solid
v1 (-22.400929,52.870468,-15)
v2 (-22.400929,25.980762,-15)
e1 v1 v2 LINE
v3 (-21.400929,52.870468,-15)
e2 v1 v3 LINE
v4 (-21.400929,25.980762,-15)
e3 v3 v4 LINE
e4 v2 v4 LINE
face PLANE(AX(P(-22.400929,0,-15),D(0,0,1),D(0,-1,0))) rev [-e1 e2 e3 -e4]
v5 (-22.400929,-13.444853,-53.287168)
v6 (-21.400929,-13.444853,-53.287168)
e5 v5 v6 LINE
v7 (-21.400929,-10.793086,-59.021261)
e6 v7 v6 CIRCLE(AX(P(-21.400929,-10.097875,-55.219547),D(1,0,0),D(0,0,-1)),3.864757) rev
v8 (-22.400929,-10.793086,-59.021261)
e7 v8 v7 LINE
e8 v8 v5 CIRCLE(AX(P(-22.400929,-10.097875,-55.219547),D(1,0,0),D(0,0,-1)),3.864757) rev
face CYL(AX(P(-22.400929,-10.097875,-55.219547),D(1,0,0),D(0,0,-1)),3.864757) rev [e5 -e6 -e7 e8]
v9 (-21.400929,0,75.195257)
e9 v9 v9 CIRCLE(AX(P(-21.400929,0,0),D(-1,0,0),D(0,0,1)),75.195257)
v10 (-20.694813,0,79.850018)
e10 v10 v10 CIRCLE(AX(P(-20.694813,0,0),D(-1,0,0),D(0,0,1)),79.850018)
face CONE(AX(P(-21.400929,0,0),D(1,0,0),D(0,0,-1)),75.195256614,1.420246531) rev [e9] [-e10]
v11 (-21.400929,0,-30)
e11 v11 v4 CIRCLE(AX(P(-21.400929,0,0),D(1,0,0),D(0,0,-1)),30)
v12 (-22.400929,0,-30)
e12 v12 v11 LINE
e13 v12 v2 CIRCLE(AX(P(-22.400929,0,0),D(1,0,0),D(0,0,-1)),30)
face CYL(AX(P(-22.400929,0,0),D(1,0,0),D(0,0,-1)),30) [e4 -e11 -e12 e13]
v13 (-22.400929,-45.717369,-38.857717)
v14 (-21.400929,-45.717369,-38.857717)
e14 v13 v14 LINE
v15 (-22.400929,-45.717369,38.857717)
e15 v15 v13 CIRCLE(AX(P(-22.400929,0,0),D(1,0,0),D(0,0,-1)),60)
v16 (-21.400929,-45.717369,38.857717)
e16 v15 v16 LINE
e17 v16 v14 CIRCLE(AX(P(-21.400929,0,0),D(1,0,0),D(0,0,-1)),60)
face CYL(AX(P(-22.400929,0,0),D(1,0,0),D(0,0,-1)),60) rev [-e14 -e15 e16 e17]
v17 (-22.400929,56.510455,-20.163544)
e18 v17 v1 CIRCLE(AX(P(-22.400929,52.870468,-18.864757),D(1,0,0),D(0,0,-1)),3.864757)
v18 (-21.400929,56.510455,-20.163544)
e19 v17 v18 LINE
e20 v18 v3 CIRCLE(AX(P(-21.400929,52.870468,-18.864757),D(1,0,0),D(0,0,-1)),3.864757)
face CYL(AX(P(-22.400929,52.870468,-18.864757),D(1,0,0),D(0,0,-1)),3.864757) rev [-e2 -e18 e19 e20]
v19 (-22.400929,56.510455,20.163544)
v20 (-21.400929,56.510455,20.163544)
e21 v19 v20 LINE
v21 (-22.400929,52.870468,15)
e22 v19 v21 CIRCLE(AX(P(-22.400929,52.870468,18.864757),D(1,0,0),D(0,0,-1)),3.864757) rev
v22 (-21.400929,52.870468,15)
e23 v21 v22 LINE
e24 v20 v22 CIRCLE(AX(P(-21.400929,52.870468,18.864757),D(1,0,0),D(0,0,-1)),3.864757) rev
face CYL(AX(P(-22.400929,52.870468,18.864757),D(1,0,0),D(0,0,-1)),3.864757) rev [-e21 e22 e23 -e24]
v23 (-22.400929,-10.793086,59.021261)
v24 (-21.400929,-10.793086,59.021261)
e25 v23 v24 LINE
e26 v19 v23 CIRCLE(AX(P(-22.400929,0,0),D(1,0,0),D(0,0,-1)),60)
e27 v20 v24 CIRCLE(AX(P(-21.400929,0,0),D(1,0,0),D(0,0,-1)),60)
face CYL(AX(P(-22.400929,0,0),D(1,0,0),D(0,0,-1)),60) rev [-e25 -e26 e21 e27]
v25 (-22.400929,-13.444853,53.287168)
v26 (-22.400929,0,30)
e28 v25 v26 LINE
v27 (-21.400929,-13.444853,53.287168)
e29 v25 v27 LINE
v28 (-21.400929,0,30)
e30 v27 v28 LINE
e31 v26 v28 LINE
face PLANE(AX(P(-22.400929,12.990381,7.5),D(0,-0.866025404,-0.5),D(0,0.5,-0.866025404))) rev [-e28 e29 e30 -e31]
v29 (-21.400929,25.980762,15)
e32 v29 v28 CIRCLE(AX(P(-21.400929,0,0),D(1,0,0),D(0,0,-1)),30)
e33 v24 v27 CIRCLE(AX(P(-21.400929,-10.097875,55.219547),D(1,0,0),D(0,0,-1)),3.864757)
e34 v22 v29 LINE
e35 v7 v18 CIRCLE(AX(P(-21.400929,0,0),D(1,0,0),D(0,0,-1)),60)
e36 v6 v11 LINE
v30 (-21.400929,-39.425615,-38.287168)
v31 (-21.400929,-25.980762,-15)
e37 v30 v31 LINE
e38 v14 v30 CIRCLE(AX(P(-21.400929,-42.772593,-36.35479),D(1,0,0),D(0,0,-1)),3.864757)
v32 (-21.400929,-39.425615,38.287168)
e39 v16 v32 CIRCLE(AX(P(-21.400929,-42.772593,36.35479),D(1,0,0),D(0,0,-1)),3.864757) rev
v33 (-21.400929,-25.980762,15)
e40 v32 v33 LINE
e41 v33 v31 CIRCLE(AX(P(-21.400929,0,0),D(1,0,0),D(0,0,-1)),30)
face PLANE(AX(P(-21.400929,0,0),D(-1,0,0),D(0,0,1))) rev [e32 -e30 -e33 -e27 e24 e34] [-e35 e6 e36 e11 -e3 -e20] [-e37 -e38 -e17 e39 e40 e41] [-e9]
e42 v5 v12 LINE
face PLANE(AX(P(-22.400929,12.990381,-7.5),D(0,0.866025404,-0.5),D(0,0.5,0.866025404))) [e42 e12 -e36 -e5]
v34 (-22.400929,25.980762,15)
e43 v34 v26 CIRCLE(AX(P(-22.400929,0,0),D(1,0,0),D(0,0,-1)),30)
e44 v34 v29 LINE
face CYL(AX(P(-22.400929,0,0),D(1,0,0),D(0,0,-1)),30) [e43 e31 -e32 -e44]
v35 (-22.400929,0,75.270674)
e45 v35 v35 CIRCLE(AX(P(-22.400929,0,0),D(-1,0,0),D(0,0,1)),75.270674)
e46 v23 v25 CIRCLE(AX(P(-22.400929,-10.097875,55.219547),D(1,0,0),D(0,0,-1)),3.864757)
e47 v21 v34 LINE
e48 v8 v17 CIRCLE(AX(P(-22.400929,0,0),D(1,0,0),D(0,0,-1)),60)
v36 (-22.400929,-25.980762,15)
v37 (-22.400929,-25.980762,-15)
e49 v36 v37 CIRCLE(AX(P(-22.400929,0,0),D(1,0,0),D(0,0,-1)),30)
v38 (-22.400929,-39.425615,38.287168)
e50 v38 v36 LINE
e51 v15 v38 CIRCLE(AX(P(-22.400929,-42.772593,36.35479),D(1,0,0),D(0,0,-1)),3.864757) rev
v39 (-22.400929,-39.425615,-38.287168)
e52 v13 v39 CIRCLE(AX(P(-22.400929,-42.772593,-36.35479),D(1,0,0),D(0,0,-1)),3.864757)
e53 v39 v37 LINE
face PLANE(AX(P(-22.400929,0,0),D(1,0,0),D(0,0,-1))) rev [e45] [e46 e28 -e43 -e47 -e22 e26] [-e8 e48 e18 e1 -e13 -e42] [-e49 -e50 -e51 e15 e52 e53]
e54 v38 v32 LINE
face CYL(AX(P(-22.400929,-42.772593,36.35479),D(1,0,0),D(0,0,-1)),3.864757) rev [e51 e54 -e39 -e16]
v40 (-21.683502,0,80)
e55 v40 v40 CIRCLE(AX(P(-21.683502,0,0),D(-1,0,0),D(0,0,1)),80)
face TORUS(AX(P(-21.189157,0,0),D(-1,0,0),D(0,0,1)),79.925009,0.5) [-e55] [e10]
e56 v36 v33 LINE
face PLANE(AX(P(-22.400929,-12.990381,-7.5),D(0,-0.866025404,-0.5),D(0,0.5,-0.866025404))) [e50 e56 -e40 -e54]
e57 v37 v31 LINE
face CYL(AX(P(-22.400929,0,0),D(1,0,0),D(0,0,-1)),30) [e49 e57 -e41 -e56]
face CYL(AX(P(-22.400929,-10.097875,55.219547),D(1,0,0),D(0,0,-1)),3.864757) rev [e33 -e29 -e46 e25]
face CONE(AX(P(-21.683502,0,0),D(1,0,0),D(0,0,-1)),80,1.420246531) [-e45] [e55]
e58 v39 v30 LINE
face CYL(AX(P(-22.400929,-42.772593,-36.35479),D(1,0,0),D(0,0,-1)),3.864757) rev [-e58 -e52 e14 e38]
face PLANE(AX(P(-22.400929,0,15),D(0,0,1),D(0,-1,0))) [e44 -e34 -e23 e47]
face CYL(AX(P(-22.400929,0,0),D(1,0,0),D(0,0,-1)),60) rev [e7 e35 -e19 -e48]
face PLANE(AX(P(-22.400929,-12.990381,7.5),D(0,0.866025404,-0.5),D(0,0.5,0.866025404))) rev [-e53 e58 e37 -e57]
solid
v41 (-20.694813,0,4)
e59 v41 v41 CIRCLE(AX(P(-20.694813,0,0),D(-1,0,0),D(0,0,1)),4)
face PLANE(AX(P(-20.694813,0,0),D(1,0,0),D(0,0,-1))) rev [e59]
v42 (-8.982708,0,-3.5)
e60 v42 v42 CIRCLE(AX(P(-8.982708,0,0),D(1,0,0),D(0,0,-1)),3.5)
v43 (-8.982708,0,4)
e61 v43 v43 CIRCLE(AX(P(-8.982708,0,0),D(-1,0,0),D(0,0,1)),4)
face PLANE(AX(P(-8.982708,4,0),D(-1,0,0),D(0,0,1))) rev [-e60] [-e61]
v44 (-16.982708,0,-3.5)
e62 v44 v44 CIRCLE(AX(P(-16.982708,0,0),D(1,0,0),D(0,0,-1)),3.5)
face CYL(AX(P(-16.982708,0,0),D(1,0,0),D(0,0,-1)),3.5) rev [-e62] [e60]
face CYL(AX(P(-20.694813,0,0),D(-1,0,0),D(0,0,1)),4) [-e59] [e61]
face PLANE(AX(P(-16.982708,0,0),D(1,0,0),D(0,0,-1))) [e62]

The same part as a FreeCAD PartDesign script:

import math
import FreeCAD as App
import Part
import Sketcher

V = App.Vector
Q = App.Units.Quantity


def add_polygon(sketch, points):
    """Adds a closed chain of lines whose ends are joined by coincident constraints."""
    first, n = sketch.GeometryCount, len(points)
    for a, b in zip(points, points[1:] + points[:1]):
        sketch.addGeometry(Part.LineSegment(App.Vector(*a, 0), App.Vector(*b, 0)), False)
    for i in range(n):
        sketch.addConstraint(Sketcher.Constraint("Coincident", first + i, 2, first + (i + 1) % n, 1))

doc = App.newDocument("Part")
body = doc.addObject("PartDesign::Body", "Body")

# Sketch on XY plane
sketch1 = doc.addObject("Sketcher::SketchObject", "Sketch")
body.addObject(sketch1)
sketch1.AttachmentSupport = (doc.XY_Plane, [""])
sketch1.MapMode = "FlatFace"
sketch1.addGeometry(Part.LineSegment(V(-22.4, 75.3, 0), V(-22.4, 0, 0)), False)
sketch1.addGeometry(Part.LineSegment(V(-22.4, 0, 0), V(-21.4, 0, 0)), False)
sketch1.addGeometry(Part.LineSegment(V(-21.4, 0, 0), V(-21.4, 75.2, 0)), False)
sketch1.addGeometry(Part.LineSegment(V(-21.4, 75.2, 0), V(-20.7, 79.9, 0)), False)
sketch1.addGeometry(Part.ArcOfCircle(Part.Circle(V(-21.2, 79.9, 0), V(0, 0, 1), 0.5), math.radians(-9), math.radians(171)), False)
sketch1.addGeometry(Part.LineSegment(V(-21.7, 80, 0), V(-22.4, 75.3, 0)), False)
sketch1.addConstraint(Sketcher.Constraint("Coincident", 0, 2, 1, 1))
sketch1.addConstraint(Sketcher.Constraint("Coincident", 1, 2, 2, 1))
sketch1.addConstraint(Sketcher.Constraint("Coincident", 2, 2, 3, 1))
sketch1.addConstraint(Sketcher.Constraint("Tangent", 3, 2, 4, 1))
sketch1.addConstraint(Sketcher.Constraint("Tangent", 4, 2, 5, 1))
sketch1.addConstraint(Sketcher.Constraint("Coincident", 5, 2, 0, 1))
sketch1.addConstraint(Sketcher.Constraint("Vertical", 0))
sketch1.addConstraint(Sketcher.Constraint("Horizontal", 1))
sketch1.addConstraint(Sketcher.Constraint("Vertical", 2))
sketch1.addConstraint(Sketcher.Constraint("PointOnObject", 0, 2, -1))
sketch1.addConstraint(Sketcher.Constraint("Parallel", 3, 5))
sketch1.addConstraint(Sketcher.Constraint("Radius", 4, Q("0.5 mm")))
sketch1.addConstraint(Sketcher.Constraint("DistanceX", 1, 1, 1, 2, Q("1 mm")))
sketch1.addConstraint(Sketcher.Constraint("DistanceY", -1, 1, 4, 2, Q("80 mm")))
sketch1.addConstraint(Sketcher.Constraint("DistanceX", 4, 2, -1, 1, Q("21.683502 mm")))
sketch1.addConstraint(Sketcher.Constraint("DistanceY", 0, 2, 0, 1, Q("75.270674 mm")))
sketch1.addConstraint(Sketcher.Constraint("DistanceY", 2, 1, 2, 2, Q("75.195257 mm")))
revolution = doc.addObject("PartDesign::Revolution", "Revolution")
body.addObject(revolution)
revolution.Profile = sketch1
revolution.ReferenceAxis = (sketch1, ["H_Axis"])
revolution.Angle = 360

# Sketch on YZ plane
sketch2 = doc.addObject("Sketcher::SketchObject", "Sketch001")
body.addObject(sketch2)
sketch2.AttachmentSupport = (doc.YZ_Plane, [""])
sketch2.MapMode = "FlatFace"
sketch2.AttachmentOffset = App.Placement(V(0, 0, -21.400929), App.Rotation())
sketch2.addGeometry(Part.LineSegment(V(26, 15, 0), V(52.9, 15, 0)), False)
sketch2.addGeometry(Part.ArcOfCircle(Part.Circle(V(52.9, 18.9, 0), V(0, 0, 1), 3.9), math.radians(-90), math.radians(20)), False)
sketch2.addGeometry(Part.ArcOfCircle(Part.Circle(V(0, 0, 0), V(0, 0, 1), 60), math.radians(20), math.radians(100)), False)
sketch2.addGeometry(Part.ArcOfCircle(Part.Circle(V(-10.1, 55.2, 0), V(0, 0, 1), 3.9), math.radians(100), math.radians(210)), False)
sketch2.addGeometry(Part.LineSegment(V(-13.4, 53.3, 0), V(0, 30, 0)), False)
sketch2.addGeometry(Part.ArcOfCircle(Part.Circle(V(0, 0, 0), V(0, 0, 1), 30), math.radians(30), math.radians(90)), False)
sketch2.addGeometry(Part.ArcOfCircle(Part.Circle(V(0, 0, 0), V(0, 0, 1), 30), math.radians(150), math.radians(210)), False)
sketch2.addGeometry(Part.LineSegment(V(-26, 15, 0), V(-39.4, 38.3, 0)), False)
sketch2.addGeometry(Part.ArcOfCircle(Part.Circle(V(-42.8, 36.4, 0), V(0, 0, 1), 3.9), math.radians(30), math.radians(140)), False)
sketch2.addGeometry(Part.ArcOfCircle(Part.Circle(V(0, 0, 0), V(0, 0, 1), 60), math.radians(140), math.radians(220)), False)
sketch2.addGeometry(Part.ArcOfCircle(Part.Circle(V(-42.8, -36.4, 0), V(0, 0, 1), 3.9), math.radians(-140), math.radians(-30)), False)
sketch2.addGeometry(Part.LineSegment(V(-39.4, -38.3, 0), V(-26, -15, 0)), False)
sketch2.addGeometry(Part.LineSegment(V(52.9, -15, 0), V(26, -15, 0)), False)
sketch2.addGeometry(Part.ArcOfCircle(Part.Circle(V(0, 0, 0), V(0, 0, 1), 30), math.radians(-90), math.radians(-30)), False)
sketch2.addGeometry(Part.LineSegment(V(0, -30, 0), V(-13.4, -53.3, 0)), False)
sketch2.addGeometry(Part.ArcOfCircle(Part.Circle(V(-10.1, -55.2, 0), V(0, 0, 1), 3.9), math.radians(150), math.radians(260)), False)
sketch2.addGeometry(Part.ArcOfCircle(Part.Circle(V(0, 0, 0), V(0, 0, 1), 60), math.radians(-100), math.radians(-20)), False)
sketch2.addGeometry(Part.ArcOfCircle(Part.Circle(V(52.9, -18.9, 0), V(0, 0, 1), 3.9), math.radians(-20), math.radians(90)), False)
sketch2.addConstraint(Sketcher.Constraint("Tangent", 0, 2, 1, 1))
sketch2.addConstraint(Sketcher.Constraint("Tangent", 1, 2, 2, 1))
sketch2.addConstraint(Sketcher.Constraint("Tangent", 2, 2, 3, 1))
sketch2.addConstraint(Sketcher.Constraint("Tangent", 3, 2, 4, 1))
sketch2.addConstraint(Sketcher.Constraint("Coincident", 4, 2, 5, 2))
sketch2.addConstraint(Sketcher.Constraint("Coincident", 5, 1, 0, 1))
sketch2.addConstraint(Sketcher.Constraint("Coincident", 6, 1, 7, 1))
sketch2.addConstraint(Sketcher.Constraint("Tangent", 7, 2, 8, 1))
sketch2.addConstraint(Sketcher.Constraint("Tangent", 8, 2, 9, 1))
sketch2.addConstraint(Sketcher.Constraint("Tangent", 9, 2, 10, 1))
sketch2.addConstraint(Sketcher.Constraint("Tangent", 10, 2, 11, 1))
sketch2.addConstraint(Sketcher.Constraint("Coincident", 11, 2, 6, 2))
sketch2.addConstraint(Sketcher.Constraint("Coincident", 12, 2, 13, 2))
sketch2.addConstraint(Sketcher.Constraint("Coincident", 13, 1, 14, 1))
sketch2.addConstraint(Sketcher.Constraint("Tangent", 14, 2, 15, 1))
sketch2.addConstraint(Sketcher.Constraint("Tangent", 15, 2, 16, 1))
sketch2.addConstraint(Sketcher.Constraint("Tangent", 16, 2, 17, 1))
sketch2.addConstraint(Sketcher.Constraint("Tangent", 17, 2, 12, 1))
sketch2.addConstraint(Sketcher.Constraint("Horizontal", 0))
sketch2.addConstraint(Sketcher.Constraint("Horizontal", 12))
sketch2.addConstraint(Sketcher.Constraint("Coincident", 2, 3, -1, 1))
sketch2.addConstraint(Sketcher.Constraint("Coincident", 5, 3, -1, 1))
sketch2.addConstraint(Sketcher.Constraint("Coincident", 6, 3, -1, 1))
sketch2.addConstraint(Sketcher.Constraint("Coincident", 9, 3, -1, 1))
sketch2.addConstraint(Sketcher.Constraint("Coincident", 13, 3, -1, 1))
sketch2.addConstraint(Sketcher.Constraint("Coincident", 16, 3, -1, 1))
sketch2.addConstraint(Sketcher.Constraint("Equal", 1, 3))
sketch2.addConstraint(Sketcher.Constraint("Equal", 5, 6))
sketch2.addConstraint(Sketcher.Constraint("Equal", 3, 8))
sketch2.addConstraint(Sketcher.Constraint("Equal", 2, 9))
sketch2.addConstraint(Sketcher.Constraint("Equal", 8, 10))
sketch2.addConstraint(Sketcher.Constraint("Equal", 6, 13))
sketch2.addConstraint(Sketcher.Constraint("Equal", 10, 15))
sketch2.addConstraint(Sketcher.Constraint("Equal", 9, 16))
sketch2.addConstraint(Sketcher.Constraint("Equal", 15, 17))
sketch2.addConstraint(Sketcher.Constraint("Symmetric", 7, 2, 10, 2, -1))
sketch2.addConstraint(Sketcher.Constraint("Symmetric", 3, 2, 14, 2, -1))
sketch2.addConstraint(Sketcher.Constraint("PointOnObject", 4, 2, -2))
sketch2.addConstraint(Sketcher.Constraint("Parallel", 4, 7))
sketch2.addConstraint(Sketcher.Constraint("Horizontal", 5, 1, 6, 1))
sketch2.addConstraint(Sketcher.Constraint("Horizontal", 11, 2, 12, 2))
sketch2.addConstraint(Sketcher.Constraint("Equal", 4, 7))
sketch2.addConstraint(Sketcher.Constraint("Radius", 2, Q("60 mm")))
sketch2.addConstraint(Sketcher.Constraint("Radius", 5, Q("30 mm")))
sketch2.addConstraint(Sketcher.Constraint("Angle", 4, Q("-60 deg")))
sketch2.addConstraint(Sketcher.Constraint("Radius", 1, Q("3.864757 mm")))
pocket1 = doc.addObject("PartDesign::Pocket", "Pocket")
body.addObject(pocket1)
pocket1.Profile = sketch2
pocket1.Type = "ThroughAll"
body2 = doc.addObject("PartDesign::Body", "Body001")

# Sketch on XY plane
sketch3 = doc.addObject("Sketcher::SketchObject", "Sketch002")
body2.addObject(sketch3)
sketch3.AttachmentSupport = (doc.getObject("XY_Plane001"), [""])
sketch3.MapMode = "FlatFace"
add_polygon(sketch3, [(-9, 4), (-20.7, 4), (-20.7, 0), (-9, 0)])  # lines 0-3
sketch3.addConstraint(Sketcher.Constraint("Horizontal", 0))
sketch3.addConstraint(Sketcher.Constraint("Vertical", 1))
sketch3.addConstraint(Sketcher.Constraint("Horizontal", 2))
sketch3.addConstraint(Sketcher.Constraint("Vertical", 3))
sketch3.addConstraint(Sketcher.Constraint("PointOnObject", 1, 2, -1))
sketch3.addConstraint(Sketcher.Constraint("DistanceY", 1, 2, 1, 1, Q("4 mm")))
sketch3.addConstraint(Sketcher.Constraint("DistanceX", 0, 2, 0, 1, Q("11.712104 mm")))
sketch3.addConstraint(Sketcher.Constraint("DistanceX", 2, 2, -1, 1, Q("8.982708 mm")))
revolution2 = doc.addObject("PartDesign::Revolution", "Revolution001")
body2.addObject(revolution2)
revolution2.Profile = sketch3
revolution2.ReferenceAxis = (sketch3, ["H_Axis"])
revolution2.Angle = 360

# Sketch on YZ plane
sketch4 = doc.addObject("Sketcher::SketchObject", "Sketch003")
body2.addObject(sketch4)
sketch4.AttachmentSupport = (doc.getObject("YZ_Plane001"), [""])
sketch4.MapMode = "FlatFace"
sketch4.AttachmentOffset = App.Placement(V(0, 0, -8.982708), App.Rotation())
sketch4.addGeometry(Part.Circle(V(0, 0, 0), V(0, 0, 1), 3.5), False)
sketch4.addConstraint(Sketcher.Constraint("Coincident", 0, 3, -1, 1))
sketch4.addConstraint(Sketcher.Constraint("Diameter", 0, Q("7 mm")))
pocket2 = doc.addObject("PartDesign::Pocket", "Pocket001")
body2.addObject(pocket2)
pocket2.Profile = sketch4
pocket2.Length = 8

doc.recompute()
